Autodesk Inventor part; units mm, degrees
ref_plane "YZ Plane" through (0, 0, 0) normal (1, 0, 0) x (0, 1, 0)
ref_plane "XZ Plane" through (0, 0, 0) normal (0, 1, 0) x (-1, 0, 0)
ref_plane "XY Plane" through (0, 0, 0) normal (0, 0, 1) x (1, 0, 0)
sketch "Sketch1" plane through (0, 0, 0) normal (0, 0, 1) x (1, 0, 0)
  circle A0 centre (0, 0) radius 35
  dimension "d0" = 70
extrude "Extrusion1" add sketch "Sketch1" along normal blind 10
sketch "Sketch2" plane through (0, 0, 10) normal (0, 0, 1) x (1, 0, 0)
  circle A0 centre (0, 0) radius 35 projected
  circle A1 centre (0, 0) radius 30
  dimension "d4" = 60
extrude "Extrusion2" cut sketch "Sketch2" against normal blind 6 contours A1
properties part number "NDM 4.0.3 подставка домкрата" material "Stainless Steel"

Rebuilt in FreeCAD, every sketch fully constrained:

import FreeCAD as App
import Part
import Sketcher
from FreeCAD import Vector
Q = App.Units.Quantity

doc = App.newDocument("Part")
body = doc.addObject("PartDesign::Body", "Body")

# Sketch on XY plane
sketch1 = body.newObject("Sketcher::SketchObject", "Sketch")
sketch1.AttachmentSupport = (doc.getObject("XY_Plane"), [""])
sketch1.MapMode = "FlatFace"
sketch1.addGeometry(Part.Circle(Vector(0, 0, 0), Vector(0, 0, 1), 35), False)
sketch1.addConstraint(Sketcher.Constraint("Coincident", 0, 3, -1, 1))
sketch1.addConstraint(Sketcher.Constraint("Diameter", 0, Q("70 mm")))
pad1 = body.newObject("PartDesign::Pad", "Pad")
pad1.Profile = sketch1
pad1.Length = 10

# Sketch on XY plane
sketch2 = body.newObject("Sketcher::SketchObject", "Sketch001")
sketch2.AttachmentSupport = (doc.getObject("XY_Plane"), [""])
sketch2.MapMode = "FlatFace"
sketch2.AttachmentOffset = App.Placement(Vector(0, 0, 10), App.Rotation())
sketch2.addGeometry(Part.Circle(Vector(0, 0, 0), Vector(0, 0, 1), 30), False)
sketch2.addConstraint(Sketcher.Constraint("Coincident", 0, 3, -1, 1))
sketch2.addConstraint(Sketcher.Constraint("Diameter", 0, Q("60 mm")))
pocket1 = body.newObject("PartDesign::Pocket", "Pocket")
pocket1.Profile = sketch2
pocket1.Length = 6

doc.recompute()
